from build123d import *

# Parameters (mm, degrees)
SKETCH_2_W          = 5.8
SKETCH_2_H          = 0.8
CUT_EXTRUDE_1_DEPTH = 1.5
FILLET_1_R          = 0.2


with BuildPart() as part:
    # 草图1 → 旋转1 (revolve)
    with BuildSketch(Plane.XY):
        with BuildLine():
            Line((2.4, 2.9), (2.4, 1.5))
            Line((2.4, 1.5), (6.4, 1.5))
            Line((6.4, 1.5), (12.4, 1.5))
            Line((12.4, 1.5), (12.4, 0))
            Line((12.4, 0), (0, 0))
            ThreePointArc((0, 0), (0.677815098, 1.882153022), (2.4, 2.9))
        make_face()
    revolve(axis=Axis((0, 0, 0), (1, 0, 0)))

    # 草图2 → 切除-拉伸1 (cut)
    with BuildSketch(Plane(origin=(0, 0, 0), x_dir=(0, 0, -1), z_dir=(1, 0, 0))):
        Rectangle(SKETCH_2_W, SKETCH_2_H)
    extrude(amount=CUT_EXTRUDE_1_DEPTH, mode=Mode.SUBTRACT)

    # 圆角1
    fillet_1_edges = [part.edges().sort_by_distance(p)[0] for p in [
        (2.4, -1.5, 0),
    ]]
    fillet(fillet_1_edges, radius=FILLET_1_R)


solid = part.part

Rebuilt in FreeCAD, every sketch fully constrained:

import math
import FreeCAD as App
import Part
import Sketcher


def edges_at(feature, points):
    """Names of the edges that pass closest to the given points."""
    edges = feature.Shape.Edges
    near = lambda p: min(range(len(edges)), key=lambda i: edges[i].distToShape(Part.Vertex(*p))[0])
    return sorted({f"Edge{near(p) + 1}" for p in points})


def add_polygon(sketch, points):
    """Adds a closed chain of lines whose ends are joined by coincident constraints."""
    first, n = sketch.GeometryCount, len(points)
    for a, b in zip(points, points[1:] + points[:1]):
        sketch.addGeometry(Part.LineSegment(App.Vector(*a, 0), App.Vector(*b, 0)), False)
    for i in range(n):
        sketch.addConstraint(Sketcher.Constraint("Coincident", first + i, 2, first + (i + 1) % n, 1))

doc = App.newDocument("Part")
params = doc.addObject("Spreadsheet::Sheet", "Params")
for row, (alias, value) in enumerate([
    ("sketch1_width", "10 mm"),
    ("sketch1_width2", "12.4 mm"),
    ("sketch1_height", "1.4 mm"),
    ("sketch1_height2", "1.5 mm"),
    ("revolution_angle", "360 deg"),
    ("sketch2_width", "0.8 mm"),
    ("sketch2_height", "5.8 mm"),
    ("pocket1_length", "1.5 mm"),
    ("fillet_radius", "0.2 mm"),
], start=1):
    params.set(f"A{row}", alias)
    params.set(f"B{row}", "=" + value)
    params.setAlias(f"B{row}", alias)

body = doc.addObject("PartDesign::Body", "Body")

sketch1 = body.newObject("Sketcher::SketchObject", "Sketch")
sketch1.AttachmentSupport = (doc.getObject("XY_Plane"), [""])
sketch1.MapMode = "FlatFace"
sketch1.addGeometry([
    Part.LineSegment(App.Vector(2.4, 1.5, 0), App.Vector(2.4, 2.9, 0)),
    Part.ArcOfCircle(Part.Circle(App.Vector(3, 0, 0), App.Vector(0, 0, 1), 3), math.radians(101), math.radians(180)),
    Part.LineSegment(App.Vector(0, 0, 0), App.Vector(12.4, 0, 0)),
    Part.LineSegment(App.Vector(12.4, 0, 0), App.Vector(12.4, 1.5, 0)),
    Part.LineSegment(App.Vector(12.4, 1.5, 0), App.Vector(2.4, 1.5, 0)),
], False)
sketch1.addConstraint([
    Sketcher.Constraint("Coincident", 0, 2, 1, 1),
    Sketcher.Constraint("Coincident", 1, 2, 2, 1),
    Sketcher.Constraint("Coincident", 2, 2, 3, 1),
    Sketcher.Constraint("Coincident", 3, 2, 4, 1),
    Sketcher.Constraint("Coincident", 4, 2, 0, 1),
    Sketcher.Constraint("Vertical", 0),
    Sketcher.Constraint("Horizontal", 2),
    Sketcher.Constraint("Vertical", 3),
    Sketcher.Constraint("Horizontal", 4),
    Sketcher.Constraint("Coincident", 1, 2, -1, 1),
    Sketcher.Constraint("PointOnObject", 1, 3, -1),
    Sketcher.Constraint("DistanceX", 4, 2, 4, 1, 10.0),
    Sketcher.Constraint("DistanceX", 2, 1, 2, 2, 12.4),
    Sketcher.Constraint("DistanceY", 0, 1, 0, 2, 1.4),
    Sketcher.Constraint("DistanceY", 3, 1, 3, 2, 1.5),
])
sketch1.setExpression("Constraints[11]", "Params.sketch1_width")
sketch1.setExpression("Constraints[12]", "Params.sketch1_width2")
sketch1.setExpression("Constraints[13]", "Params.sketch1_height")
sketch1.setExpression("Constraints[14]", "Params.sketch1_height2")
revolution = body.newObject("PartDesign::Revolution", "Revolution")
revolution.Profile = sketch1
revolution.ReferenceAxis = (sketch1, ["H_Axis"])
revolution.setExpression("Angle", "Params.revolution_angle")

sketch2 = body.newObject("Sketcher::SketchObject", "Sketch001")
sketch2.AttachmentSupport = (doc.getObject("YZ_Plane"), [""])
sketch2.MapMode = "FlatFace"
add_polygon(sketch2, [(0.4, 2.9), (-0.4, 2.9), (-0.4, -2.9), (0.4, -2.9)])
sketch2.addConstraint([
    Sketcher.Constraint("Horizontal", 0),
    Sketcher.Constraint("Vertical", 1),
    Sketcher.Constraint("Horizontal", 2),
    Sketcher.Constraint("Vertical", 3),
    Sketcher.Constraint("Symmetric", 0, 2, 2, 2, -1, 1),
    Sketcher.Constraint("DistanceX", 0, 2, 0, 1, 0.8),
    Sketcher.Constraint("DistanceY", 1, 2, 1, 1, 5.8),
])
sketch2.setExpression("Constraints[9]", "Params.sketch2_width")
sketch2.setExpression("Constraints[10]", "Params.sketch2_height")
pocket1 = body.newObject("PartDesign::Pocket", "Pocket")
pocket1.Profile = sketch2
pocket1.setExpression("Length", "Params.pocket1_length")
pocket1.Reversed = True
doc.recompute()

fillet = body.newObject("PartDesign::Fillet", "Fillet")
fillet.Base = (pocket1, edges_at(pocket1, [(2.4, -1.5, 0)]))
fillet.setExpression("Radius", "Params.fillet_radius")

doc.recompute()
